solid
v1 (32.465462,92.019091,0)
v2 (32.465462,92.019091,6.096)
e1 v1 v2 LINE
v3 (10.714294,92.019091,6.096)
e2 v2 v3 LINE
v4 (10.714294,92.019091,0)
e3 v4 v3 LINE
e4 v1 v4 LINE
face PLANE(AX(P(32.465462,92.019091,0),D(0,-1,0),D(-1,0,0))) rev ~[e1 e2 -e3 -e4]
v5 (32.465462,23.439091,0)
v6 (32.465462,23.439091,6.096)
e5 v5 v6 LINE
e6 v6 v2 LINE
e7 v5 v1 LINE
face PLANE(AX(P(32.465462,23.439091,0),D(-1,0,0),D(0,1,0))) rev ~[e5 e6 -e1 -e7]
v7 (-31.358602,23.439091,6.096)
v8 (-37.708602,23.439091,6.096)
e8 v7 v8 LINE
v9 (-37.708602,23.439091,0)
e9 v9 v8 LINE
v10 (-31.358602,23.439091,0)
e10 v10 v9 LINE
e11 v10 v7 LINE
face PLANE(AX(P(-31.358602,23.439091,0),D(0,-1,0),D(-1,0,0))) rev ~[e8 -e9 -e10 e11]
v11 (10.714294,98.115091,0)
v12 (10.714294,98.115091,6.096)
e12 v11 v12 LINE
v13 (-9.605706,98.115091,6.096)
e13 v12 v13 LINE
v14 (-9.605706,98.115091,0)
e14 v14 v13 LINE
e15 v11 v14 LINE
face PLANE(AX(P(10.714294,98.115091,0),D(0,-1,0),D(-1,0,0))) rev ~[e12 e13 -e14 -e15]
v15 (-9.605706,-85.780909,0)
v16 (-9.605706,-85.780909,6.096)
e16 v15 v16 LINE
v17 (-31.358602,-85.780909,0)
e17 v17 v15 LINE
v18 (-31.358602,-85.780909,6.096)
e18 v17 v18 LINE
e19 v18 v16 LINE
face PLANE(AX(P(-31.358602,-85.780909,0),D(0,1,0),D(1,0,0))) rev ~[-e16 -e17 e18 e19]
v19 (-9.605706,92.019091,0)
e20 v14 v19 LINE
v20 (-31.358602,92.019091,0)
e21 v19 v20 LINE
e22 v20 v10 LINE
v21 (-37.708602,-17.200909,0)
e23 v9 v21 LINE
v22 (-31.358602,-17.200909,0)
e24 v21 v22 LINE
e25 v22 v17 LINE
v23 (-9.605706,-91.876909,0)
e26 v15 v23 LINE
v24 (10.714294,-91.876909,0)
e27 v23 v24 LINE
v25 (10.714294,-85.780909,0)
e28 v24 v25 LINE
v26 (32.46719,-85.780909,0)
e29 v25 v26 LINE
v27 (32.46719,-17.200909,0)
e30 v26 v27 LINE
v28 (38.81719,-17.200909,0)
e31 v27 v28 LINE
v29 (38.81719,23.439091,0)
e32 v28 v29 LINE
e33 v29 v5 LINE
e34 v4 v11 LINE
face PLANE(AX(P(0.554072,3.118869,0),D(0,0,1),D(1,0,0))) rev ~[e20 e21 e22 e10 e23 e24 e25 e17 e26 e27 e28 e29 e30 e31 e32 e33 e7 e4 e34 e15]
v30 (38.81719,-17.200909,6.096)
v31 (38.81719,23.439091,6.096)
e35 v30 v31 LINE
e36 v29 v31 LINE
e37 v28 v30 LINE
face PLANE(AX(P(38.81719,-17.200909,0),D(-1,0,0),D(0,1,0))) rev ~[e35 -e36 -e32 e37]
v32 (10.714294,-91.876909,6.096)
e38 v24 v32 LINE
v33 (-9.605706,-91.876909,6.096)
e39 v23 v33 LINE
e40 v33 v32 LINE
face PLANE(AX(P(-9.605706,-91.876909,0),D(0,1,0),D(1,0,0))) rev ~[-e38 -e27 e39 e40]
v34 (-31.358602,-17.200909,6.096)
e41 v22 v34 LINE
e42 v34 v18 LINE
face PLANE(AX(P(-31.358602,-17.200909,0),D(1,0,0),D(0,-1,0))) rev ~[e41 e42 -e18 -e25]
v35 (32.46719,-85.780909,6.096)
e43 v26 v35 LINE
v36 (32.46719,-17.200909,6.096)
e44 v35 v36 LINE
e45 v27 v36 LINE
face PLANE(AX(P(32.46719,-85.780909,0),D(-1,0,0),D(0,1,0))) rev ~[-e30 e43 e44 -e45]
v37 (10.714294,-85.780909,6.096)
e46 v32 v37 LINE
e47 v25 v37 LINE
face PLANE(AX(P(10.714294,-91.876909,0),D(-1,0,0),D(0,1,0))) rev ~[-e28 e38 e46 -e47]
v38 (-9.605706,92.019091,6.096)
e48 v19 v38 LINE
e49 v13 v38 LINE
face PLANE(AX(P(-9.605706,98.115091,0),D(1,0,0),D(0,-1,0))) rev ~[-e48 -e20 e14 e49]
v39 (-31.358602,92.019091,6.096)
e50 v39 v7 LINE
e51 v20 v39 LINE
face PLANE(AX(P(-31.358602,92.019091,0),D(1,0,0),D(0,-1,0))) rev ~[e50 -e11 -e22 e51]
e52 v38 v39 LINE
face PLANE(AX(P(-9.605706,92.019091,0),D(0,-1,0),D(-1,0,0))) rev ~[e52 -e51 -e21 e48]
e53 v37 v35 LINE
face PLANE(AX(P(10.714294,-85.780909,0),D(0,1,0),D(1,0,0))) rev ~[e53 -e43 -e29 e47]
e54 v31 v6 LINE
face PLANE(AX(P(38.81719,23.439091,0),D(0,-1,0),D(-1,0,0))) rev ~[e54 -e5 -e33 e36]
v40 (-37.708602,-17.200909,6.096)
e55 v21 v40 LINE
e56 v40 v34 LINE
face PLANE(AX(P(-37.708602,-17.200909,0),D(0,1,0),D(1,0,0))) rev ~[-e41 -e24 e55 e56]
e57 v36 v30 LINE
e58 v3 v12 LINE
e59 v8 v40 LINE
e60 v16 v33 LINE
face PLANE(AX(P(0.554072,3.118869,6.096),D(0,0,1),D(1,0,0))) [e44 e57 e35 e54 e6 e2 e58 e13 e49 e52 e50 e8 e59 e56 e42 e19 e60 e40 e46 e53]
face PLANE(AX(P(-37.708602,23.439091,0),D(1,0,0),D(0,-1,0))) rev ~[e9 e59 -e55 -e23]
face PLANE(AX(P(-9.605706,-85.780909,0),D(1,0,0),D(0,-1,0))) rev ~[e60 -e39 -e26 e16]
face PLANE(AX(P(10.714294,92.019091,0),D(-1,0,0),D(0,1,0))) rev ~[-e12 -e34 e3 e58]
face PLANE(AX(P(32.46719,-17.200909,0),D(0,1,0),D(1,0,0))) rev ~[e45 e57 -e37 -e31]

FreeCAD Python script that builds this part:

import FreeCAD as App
import Part
import Sketcher
Q = App.Units.Quantity

doc = App.newDocument("Part")
body = doc.addObject("PartDesign::Body", "Body")

# Sketch on XY plane
sketch1 = body.newObject("Sketcher::SketchObject", "Sketch")
sketch1.AttachmentSupport = (doc.getObject("XY_Plane"), [""])
sketch1.MapMode = "FlatFace"
sketch1.addGeometry(Part.LineSegment(App.Vector(-31, 23, 0), App.Vector(-38, 23, 0)), False)
sketch1.addGeometry(Part.LineSegment(App.Vector(-38, 23, 0), App.Vector(-38, -17, 0)), False)
sketch1.addGeometry(Part.LineSegment(App.Vector(-38, -17, 0), App.Vector(-31, -17, 0)), False)
sketch1.addGeometry(Part.LineSegment(App.Vector(-31, -17, 0), App.Vector(-31, -86, 0)), False)
sketch1.addGeometry(Part.LineSegment(App.Vector(-31, -86, 0), App.Vector(-10, -86, 0)), False)
sketch1.addGeometry(Part.LineSegment(App.Vector(-10, -86, 0), App.Vector(-10, -92, 0)), False)
sketch1.addGeometry(Part.LineSegment(App.Vector(-10, -92, 0), App.Vector(11, -92, 0)), False)
sketch1.addGeometry(Part.LineSegment(App.Vector(11, -92, 0), App.Vector(11, -86, 0)), False)
sketch1.addGeometry(Part.LineSegment(App.Vector(11, -86, 0), App.Vector(32, -86, 0)), False)
sketch1.addGeometry(Part.LineSegment(App.Vector(32, -86, 0), App.Vector(32, -17, 0)), False)
sketch1.addGeometry(Part.LineSegment(App.Vector(32, -17, 0), App.Vector(39, -17, 0)), False)
sketch1.addGeometry(Part.LineSegment(App.Vector(39, -17, 0), App.Vector(39, 23, 0)), False)
sketch1.addGeometry(Part.LineSegment(App.Vector(39, 23, 0), App.Vector(32, 23, 0)), False)
sketch1.addGeometry(Part.LineSegment(App.Vector(32, 23, 0), App.Vector(32, 92, 0)), False)
sketch1.addGeometry(Part.LineSegment(App.Vector(32, 92, 0), App.Vector(11, 92, 0)), False)
sketch1.addGeometry(Part.LineSegment(App.Vector(11, 92, 0), App.Vector(11, 98, 0)), False)
sketch1.addGeometry(Part.LineSegment(App.Vector(11, 98, 0), App.Vector(-10, 98, 0)), False)
sketch1.addGeometry(Part.LineSegment(App.Vector(-10, 98, 0), App.Vector(-10, 92, 0)), False)
sketch1.addGeometry(Part.LineSegment(App.Vector(-10, 92, 0), App.Vector(-31, 92, 0)), False)
sketch1.addGeometry(Part.LineSegment(App.Vector(-31, 92, 0), App.Vector(-31, 23, 0)), False)
sketch1.addConstraint(Sketcher.Constraint("Coincident", 0, 2, 1, 1))
sketch1.addConstraint(Sketcher.Constraint("Coincident", 1, 2, 2, 1))
sketch1.addConstraint(Sketcher.Constraint("Coincident", 2, 2, 3, 1))
sketch1.addConstraint(Sketcher.Constraint("Coincident", 3, 2, 4, 1))
sketch1.addConstraint(Sketcher.Constraint("Coincident", 4, 2, 5, 1))
sketch1.addConstraint(Sketcher.Constraint("Coincident", 5, 2, 6, 1))
sketch1.addConstraint(Sketcher.Constraint("Coincident", 6, 2, 7, 1))
sketch1.addConstraint(Sketcher.Constraint("Coincident", 7, 2, 8, 1))
sketch1.addConstraint(Sketcher.Constraint("Coincident", 8, 2, 9, 1))
sketch1.addConstraint(Sketcher.Constraint("Coincident", 9, 2, 10, 1))
sketch1.addConstraint(Sketcher.Constraint("Coincident", 10, 2, 11, 1))
sketch1.addConstraint(Sketcher.Constraint("Coincident", 11, 2, 12, 1))
sketch1.addConstraint(Sketcher.Constraint("Coincident", 12, 2, 13, 1))
sketch1.addConstraint(Sketcher.Constraint("Coincident", 13, 2, 14, 1))
sketch1.addConstraint(Sketcher.Constraint("Coincident", 14, 2, 15, 1))
sketch1.addConstraint(Sketcher.Constraint("Coincident", 15, 2, 16, 1))
sketch1.addConstraint(Sketcher.Constraint("Coincident", 16, 2, 17, 1))
sketch1.addConstraint(Sketcher.Constraint("Coincident", 17, 2, 18, 1))
sketch1.addConstraint(Sketcher.Constraint("Coincident", 18, 2, 19, 1))
sketch1.addConstraint(Sketcher.Constraint("Coincident", 19, 2, 0, 1))
sketch1.addConstraint(Sketcher.Constraint("Horizontal", 0))
sketch1.addConstraint(Sketcher.Constraint("Vertical", 1))
sketch1.addConstraint(Sketcher.Constraint("Horizontal", 2))
sketch1.addConstraint(Sketcher.Constraint("Vertical", 3))
sketch1.addConstraint(Sketcher.Constraint("Horizontal", 4))
sketch1.addConstraint(Sketcher.Constraint("Vertical", 5))
sketch1.addConstraint(Sketcher.Constraint("Horizontal", 6))
sketch1.addConstraint(Sketcher.Constraint("Vertical", 7))
sketch1.addConstraint(Sketcher.Constraint("Horizontal", 8))
sketch1.addConstraint(Sketcher.Constraint("Vertical", 9))
sketch1.addConstraint(Sketcher.Constraint("Horizontal", 10))
sketch1.addConstraint(Sketcher.Constraint("Vertical", 11))
sketch1.addConstraint(Sketcher.Constraint("Horizontal", 12))
sketch1.addConstraint(Sketcher.Constraint("Vertical", 13))
sketch1.addConstraint(Sketcher.Constraint("Horizontal", 14))
sketch1.addConstraint(Sketcher.Constraint("Vertical", 15))
sketch1.addConstraint(Sketcher.Constraint("Horizontal", 16))
sketch1.addConstraint(Sketcher.Constraint("Vertical", 17))
sketch1.addConstraint(Sketcher.Constraint("Horizontal", 18))
sketch1.addConstraint(Sketcher.Constraint("Vertical", 19))
sketch1.addConstraint(Sketcher.Constraint("Horizontal", 4, 2, 7, 2))
sketch1.addConstraint(Sketcher.Constraint("Horizontal", 2, 2, 9, 2))
sketch1.addConstraint(Sketcher.Constraint("Horizontal", 0, 2, 11, 2))
sketch1.addConstraint(Sketcher.Constraint("Horizontal", 14, 2, 17, 2))
sketch1.addConstraint(Sketcher.Constraint("Vertical", 7, 2, 14, 2))
sketch1.addConstraint(Sketcher.Constraint("Vertical", 5, 2, 16, 2))
sketch1.addConstraint(Sketcher.Constraint("Vertical", 3, 2, 18, 2))
sketch1.addConstraint(Sketcher.Constraint("Equal", 4, 8))
sketch1.addConstraint(Sketcher.Constraint("Equal", 2, 10))
sketch1.addConstraint(Sketcher.Constraint("Equal", 9, 13))
sketch1.addConstraint(Sketcher.Constraint("Equal", 7, 15))
sketch1.addConstraint(Sketcher.Constraint("DistanceX", 6, 1, 6, 2, Q("0.8 in")))
sketch1.addConstraint(Sketcher.Constraint("DistanceY", 1, 2, 1, 1, Q("1.6 in")))
sketch1.addConstraint(Sketcher.Constraint("DistanceY", 3, 2, 3, 1, Q("2.7 in")))
sketch1.addConstraint(Sketcher.Constraint("DistanceX", 0, 2, 0, 1, Q("0.25 in")))
sketch1.addConstraint(Sketcher.Constraint("DistanceY", 5, 2, 5, 1, Q("0.24 in")))
sketch1.addConstraint(Sketcher.Constraint("DistanceX", 14, 2, 14, 1, Q("21.751168 mm")))
sketch1.addConstraint(Sketcher.Constraint("DistanceX", 4, 1, 4, 2, Q("21.752896 mm")))
sketch1.addConstraint(Sketcher.Constraint("DistanceY", -1, 1, 0, 2, Q("23.439091 mm")))
sketch1.addConstraint(Sketcher.Constraint("DistanceX", -1, 1, 8, 2, Q("32.46719 mm")))
pad1 = body.newObject("PartDesign::Pad", "Pad")
pad1.Profile = sketch1
pad1.Length = Q("0.24 in")

doc.recompute()
